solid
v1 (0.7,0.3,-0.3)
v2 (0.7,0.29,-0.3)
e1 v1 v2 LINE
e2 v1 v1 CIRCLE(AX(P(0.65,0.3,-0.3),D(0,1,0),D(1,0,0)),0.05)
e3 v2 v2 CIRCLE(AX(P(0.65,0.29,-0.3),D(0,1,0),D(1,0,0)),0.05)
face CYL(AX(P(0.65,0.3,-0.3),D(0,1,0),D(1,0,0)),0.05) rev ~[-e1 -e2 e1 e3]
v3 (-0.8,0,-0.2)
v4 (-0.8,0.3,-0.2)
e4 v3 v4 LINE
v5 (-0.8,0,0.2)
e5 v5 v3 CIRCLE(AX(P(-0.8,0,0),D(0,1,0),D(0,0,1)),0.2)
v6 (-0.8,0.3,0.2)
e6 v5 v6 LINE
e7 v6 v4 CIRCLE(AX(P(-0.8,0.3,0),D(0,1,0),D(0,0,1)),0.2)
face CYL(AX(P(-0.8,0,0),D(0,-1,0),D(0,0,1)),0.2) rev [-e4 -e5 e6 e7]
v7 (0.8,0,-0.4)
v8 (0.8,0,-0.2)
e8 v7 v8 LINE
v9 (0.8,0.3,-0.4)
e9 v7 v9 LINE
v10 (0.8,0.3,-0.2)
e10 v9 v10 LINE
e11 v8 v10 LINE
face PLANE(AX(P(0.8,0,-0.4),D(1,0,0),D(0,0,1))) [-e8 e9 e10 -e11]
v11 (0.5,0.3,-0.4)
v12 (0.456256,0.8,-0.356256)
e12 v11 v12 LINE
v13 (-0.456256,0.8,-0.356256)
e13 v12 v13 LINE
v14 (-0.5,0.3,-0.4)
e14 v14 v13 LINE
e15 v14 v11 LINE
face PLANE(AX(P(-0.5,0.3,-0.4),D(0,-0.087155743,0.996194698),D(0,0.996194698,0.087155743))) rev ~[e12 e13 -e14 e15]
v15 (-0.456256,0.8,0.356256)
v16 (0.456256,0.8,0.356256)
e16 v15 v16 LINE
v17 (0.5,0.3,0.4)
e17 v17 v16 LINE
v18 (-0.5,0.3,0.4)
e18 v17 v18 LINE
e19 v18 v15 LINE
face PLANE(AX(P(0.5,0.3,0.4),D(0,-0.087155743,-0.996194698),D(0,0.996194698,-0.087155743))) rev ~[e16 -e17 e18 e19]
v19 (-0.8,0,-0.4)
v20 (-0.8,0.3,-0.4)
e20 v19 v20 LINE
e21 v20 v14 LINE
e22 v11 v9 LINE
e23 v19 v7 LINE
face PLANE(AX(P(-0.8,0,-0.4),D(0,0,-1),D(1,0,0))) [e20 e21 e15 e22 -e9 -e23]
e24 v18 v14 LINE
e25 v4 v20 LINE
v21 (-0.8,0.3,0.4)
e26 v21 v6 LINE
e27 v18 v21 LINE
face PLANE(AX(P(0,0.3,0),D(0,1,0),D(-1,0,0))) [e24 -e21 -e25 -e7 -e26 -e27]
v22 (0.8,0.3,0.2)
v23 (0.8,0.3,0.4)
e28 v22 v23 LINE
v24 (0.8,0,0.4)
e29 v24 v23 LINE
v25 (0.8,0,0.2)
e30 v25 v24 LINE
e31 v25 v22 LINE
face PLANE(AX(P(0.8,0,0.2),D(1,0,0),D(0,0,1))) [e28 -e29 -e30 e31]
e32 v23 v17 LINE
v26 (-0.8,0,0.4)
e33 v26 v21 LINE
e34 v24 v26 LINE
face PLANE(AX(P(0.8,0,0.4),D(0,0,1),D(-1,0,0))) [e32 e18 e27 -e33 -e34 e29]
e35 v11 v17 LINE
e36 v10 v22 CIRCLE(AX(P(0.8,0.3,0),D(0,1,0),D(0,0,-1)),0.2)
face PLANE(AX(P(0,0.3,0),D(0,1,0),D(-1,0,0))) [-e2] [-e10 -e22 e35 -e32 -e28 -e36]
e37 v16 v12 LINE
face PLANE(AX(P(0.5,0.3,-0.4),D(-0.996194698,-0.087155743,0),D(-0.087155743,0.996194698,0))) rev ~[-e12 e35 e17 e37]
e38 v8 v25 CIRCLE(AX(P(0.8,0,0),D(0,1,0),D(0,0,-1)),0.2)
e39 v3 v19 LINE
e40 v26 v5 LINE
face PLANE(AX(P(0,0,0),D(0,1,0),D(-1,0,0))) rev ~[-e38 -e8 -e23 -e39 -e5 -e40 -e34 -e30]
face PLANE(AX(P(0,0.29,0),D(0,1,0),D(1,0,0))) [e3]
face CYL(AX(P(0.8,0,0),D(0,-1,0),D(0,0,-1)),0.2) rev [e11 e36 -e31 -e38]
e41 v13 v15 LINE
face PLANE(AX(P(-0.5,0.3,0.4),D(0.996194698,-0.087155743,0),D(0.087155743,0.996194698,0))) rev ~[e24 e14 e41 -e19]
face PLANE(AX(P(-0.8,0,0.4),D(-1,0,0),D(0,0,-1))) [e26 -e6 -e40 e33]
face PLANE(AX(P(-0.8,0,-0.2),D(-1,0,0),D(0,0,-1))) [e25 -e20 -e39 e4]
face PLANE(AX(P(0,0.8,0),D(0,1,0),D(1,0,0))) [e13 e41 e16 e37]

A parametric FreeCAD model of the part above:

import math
import FreeCAD as App
import Part
import Sketcher

V = App.Vector

doc = App.newDocument("Part")
body = doc.addObject("PartDesign::Body", "Body")

# Sketch on XZ plane
sketch1 = body.newObject("Sketcher::SketchObject", "Sketch")
sketch1.AttachmentSupport = (doc.getObject("XZ_Plane"), [""])
sketch1.MapMode = "FlatFace"
sketch1.addGeometry([
    Part.LineSegment(V(0.8, -0.4, 0), V(-0.8, -0.4, 0)),  # 0
    Part.LineSegment(V(-0.8, -0.4, 0), V(-0.8, -0.2, 0)),  # 1
    Part.ArcOfCircle(Part.Circle(V(-0.8, 0, 0), V(0, 0, 1), 0.2), math.radians(-90), math.radians(90)),  # 2
    Part.LineSegment(V(-0.8, 0.2, 0), V(-0.8, 0.4, 0)),  # 3
    Part.LineSegment(V(-0.8, 0.4, 0), V(0.8, 0.4, 0)),  # 4
    Part.LineSegment(V(0.8, 0.4, 0), V(0.8, 0.2, 0)),  # 5
    Part.ArcOfCircle(Part.Circle(V(0.8, 0, 0), V(0, 0, 1), 0.2), math.radians(90), math.radians(270)),  # 6
    Part.LineSegment(V(0.8, -0.2, 0), V(0.8, -0.4, 0)),  # 7
], False)
sketch1.addConstraint([
    Sketcher.Constraint("Coincident", 0, 2, 1, 1),
    Sketcher.Constraint("Coincident", 1, 2, 2, 1),
    Sketcher.Constraint("Coincident", 2, 2, 3, 1),
    Sketcher.Constraint("Coincident", 3, 2, 4, 1),
    Sketcher.Constraint("Coincident", 4, 2, 5, 1),
    Sketcher.Constraint("Coincident", 5, 2, 6, 1),
    Sketcher.Constraint("Coincident", 6, 2, 7, 1),
    Sketcher.Constraint("Coincident", 7, 2, 0, 1),
    Sketcher.Constraint("Horizontal", 0),
    Sketcher.Constraint("Vertical", 1),
    Sketcher.Constraint("Vertical", 3),
    Sketcher.Constraint("Horizontal", 4),
    Sketcher.Constraint("Vertical", 5),
    Sketcher.Constraint("Vertical", 7),
    Sketcher.Constraint("Equal", 2, 6),
    Sketcher.Constraint("Symmetric", 2, 3, 6, 3, -1, 1),
    Sketcher.Constraint("Symmetric", 0, 2, 4, 2, -1, 1),
    Sketcher.Constraint("Symmetric", 2, 2, 5, 2, -2),
    Sketcher.Constraint("Vertical", 2, 3, 0, 2),
    Sketcher.Constraint("Vertical", 5, 2, 6, 2),
    Sketcher.Constraint("Radius", 2, 0.2),
    Sketcher.Constraint("DistanceX", 0, 2, 0, 1, 1.6),
    Sketcher.Constraint("DistanceY", 1, 1, 1, 2, 0.2),
])
pad1 = body.newObject("PartDesign::Pad", "Pad")
pad1.Profile = sketch1
pad1.Length = 0.3
pad1.Reversed = True

# Sketch on XZ plane
sketch2 = body.newObject("Sketcher::SketchObject", "Sketch001")
sketch2.AttachmentSupport = (doc.getObject("XZ_Plane"), [""])
sketch2.MapMode = "FlatFace"
sketch2.AttachmentOffset = App.Placement(V(0, 0, -0.3), App.Rotation())
sketch2.addGeometry(Part.Circle(V(0, 0, 0), V(0, 0, 1), 0.15), False)
sketch2.addConstraint([
    Sketcher.Constraint("Coincident", 0, 3, -1, 1),
    Sketcher.Constraint("Diameter", 0, 0.3),
])
pad2 = body.newObject("PartDesign::Pad", "Pad001")
pad2.Profile = sketch2
pad2.Length = 0.1
pad2.Reversed = True

# Sketch on XZ plane
sketch3 = body.newObject("Sketcher::SketchObject", "Sketch002")
sketch3.AttachmentSupport = (doc.getObject("XZ_Plane"), [""])
sketch3.MapMode = "FlatFace"
sketch3.AttachmentOffset = App.Placement(V(0, 0, -0.3), App.Rotation())
sketch3.addGeometry([
    Part.LineSegment(V(0.5, -0.4, 0), V(-0.5, -0.4, 0)),
    Part.LineSegment(V(-0.5, -0.4, 0), V(-0.5, 0.4, 0)),
    Part.LineSegment(V(-0.5, 0.4, 0), V(0.5, 0.4, 0)),
    Part.LineSegment(V(0.5, 0.4, 0), V(0.5, -0.4, 0)),
], False)
sketch3.addConstraint([
    Sketcher.Constraint("Coincident", 0, 2, 1, 1),
    Sketcher.Constraint("Coincident", 1, 2, 2, 1),
    Sketcher.Constraint("Coincident", 2, 2, 3, 1),
    Sketcher.Constraint("Coincident", 3, 2, 0, 1),
    Sketcher.Constraint("Horizontal", 0),
    Sketcher.Constraint("Vertical", 1),
    Sketcher.Constraint("Horizontal", 2),
    Sketcher.Constraint("Vertical", 3),
    Sketcher.Constraint("Symmetric", 0, 2, 2, 2, -1, 1),
    Sketcher.Constraint("DistanceX", 0, 2, 0, 1, 1.0),
    Sketcher.Constraint("DistanceY", 1, 1, 1, 2, 0.8),
])
pad3 = body.newObject("PartDesign::Pad", "Pad002")
pad3.Profile = sketch3
pad3.Length = 0.5
pad3.Reversed = True
pad3.TaperAngle = -5

# Sketch on XZ plane
sketch4 = body.newObject("Sketcher::SketchObject", "Sketch003")
sketch4.AttachmentSupport = (doc.getObject("XZ_Plane"), [""])
sketch4.MapMode = "FlatFace"
sketch4.AttachmentOffset = App.Placement(V(0, 0, -0.3), App.Rotation())
sketch4.addGeometry(Part.Circle(V(0.65, -0.3, 0), V(0, 0, 1), 0.05), False)
sketch4.addConstraint([
    Sketcher.Constraint("Diameter", 0, 0.1),
    Sketcher.Constraint("DistanceY", 0, 3, -1, 1, 0.3),
    Sketcher.Constraint("DistanceX", -1, 1, 0, 3, 0.65),
])
pocket1 = body.newObject("PartDesign::Pocket", "Pocket")
pocket1.Profile = sketch4
pocket1.Length = 0.01
pocket1.Reversed = True

doc.recompute()
